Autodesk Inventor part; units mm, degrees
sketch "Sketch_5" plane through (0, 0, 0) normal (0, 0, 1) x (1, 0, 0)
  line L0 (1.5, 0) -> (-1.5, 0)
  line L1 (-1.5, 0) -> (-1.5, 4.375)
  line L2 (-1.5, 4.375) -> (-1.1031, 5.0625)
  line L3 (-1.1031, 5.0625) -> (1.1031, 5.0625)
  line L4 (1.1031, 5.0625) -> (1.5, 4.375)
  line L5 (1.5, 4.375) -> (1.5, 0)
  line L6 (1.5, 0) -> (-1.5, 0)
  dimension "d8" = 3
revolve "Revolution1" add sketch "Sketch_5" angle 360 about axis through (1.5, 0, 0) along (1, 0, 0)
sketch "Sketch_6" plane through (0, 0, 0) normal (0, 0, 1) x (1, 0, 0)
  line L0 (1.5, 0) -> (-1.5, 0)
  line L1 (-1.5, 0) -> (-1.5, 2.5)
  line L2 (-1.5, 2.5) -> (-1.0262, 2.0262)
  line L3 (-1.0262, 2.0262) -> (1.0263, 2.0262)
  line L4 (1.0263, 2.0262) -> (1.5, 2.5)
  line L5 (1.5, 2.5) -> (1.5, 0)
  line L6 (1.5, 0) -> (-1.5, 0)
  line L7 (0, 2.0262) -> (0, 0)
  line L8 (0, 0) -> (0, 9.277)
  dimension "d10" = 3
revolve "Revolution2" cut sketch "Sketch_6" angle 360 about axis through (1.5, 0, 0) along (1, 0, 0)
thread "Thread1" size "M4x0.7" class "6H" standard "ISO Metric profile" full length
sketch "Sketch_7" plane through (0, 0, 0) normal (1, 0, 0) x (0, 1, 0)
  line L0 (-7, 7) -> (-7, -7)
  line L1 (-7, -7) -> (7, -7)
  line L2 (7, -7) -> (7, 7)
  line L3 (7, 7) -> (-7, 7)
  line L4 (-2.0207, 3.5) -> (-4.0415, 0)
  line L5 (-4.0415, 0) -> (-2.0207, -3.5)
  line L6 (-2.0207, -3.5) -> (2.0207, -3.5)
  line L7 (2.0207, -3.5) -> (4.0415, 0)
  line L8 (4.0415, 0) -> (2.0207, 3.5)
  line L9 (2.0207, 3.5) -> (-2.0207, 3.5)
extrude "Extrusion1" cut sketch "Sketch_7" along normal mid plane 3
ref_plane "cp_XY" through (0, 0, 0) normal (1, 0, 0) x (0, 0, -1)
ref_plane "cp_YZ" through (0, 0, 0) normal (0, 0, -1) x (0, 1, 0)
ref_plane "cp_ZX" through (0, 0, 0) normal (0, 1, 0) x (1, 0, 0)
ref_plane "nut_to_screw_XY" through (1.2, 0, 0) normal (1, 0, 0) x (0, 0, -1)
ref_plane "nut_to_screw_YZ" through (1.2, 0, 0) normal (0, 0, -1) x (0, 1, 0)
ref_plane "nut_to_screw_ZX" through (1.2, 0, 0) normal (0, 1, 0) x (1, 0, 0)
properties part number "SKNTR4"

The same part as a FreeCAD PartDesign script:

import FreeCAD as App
import Part
import Sketcher
Q = App.Units.Quantity

doc = App.newDocument("Part")
body = doc.addObject("PartDesign::Body", "Body")

sketch1 = doc.addObject("Sketcher::SketchObject", "Sketch")
body.addObject(sketch1)
sketch1.AttachmentSupport = (doc.XY_Plane, [""])
sketch1.MapMode = "FlatFace"
sketch1.addGeometry([
    Part.LineSegment(App.Vector(-1.5, 0, 0), App.Vector(1.5, 0, 0)),
    Part.LineSegment(App.Vector(1.5, 0, 0), App.Vector(1.5, 4.4, 0)),
    Part.LineSegment(App.Vector(1.5, 4.4, 0), App.Vector(1.1, 5.1, 0)),
    Part.LineSegment(App.Vector(1.1, 5.1, 0), App.Vector(-1.1, 5.1, 0)),
    Part.LineSegment(App.Vector(-1.1, 5.1, 0), App.Vector(-1.5, 4.4, 0)),
    Part.LineSegment(App.Vector(-1.5, 4.4, 0), App.Vector(-1.5, 0, 0)),
], False)
sketch1.addConstraint([
    Sketcher.Constraint("Coincident", 0, 2, 1, 1),
    Sketcher.Constraint("Coincident", 1, 2, 2, 1),
    Sketcher.Constraint("Coincident", 2, 2, 3, 1),
    Sketcher.Constraint("Coincident", 3, 2, 4, 1),
    Sketcher.Constraint("Coincident", 4, 2, 5, 1),
    Sketcher.Constraint("Coincident", 5, 2, 0, 1),
    Sketcher.Constraint("Horizontal", 0),
    Sketcher.Constraint("Vertical", 1),
    Sketcher.Constraint("Horizontal", 3),
    Sketcher.Constraint("Vertical", 5),
    Sketcher.Constraint("Symmetric", 0, 2, 5, 2, -1, 1),
    Sketcher.Constraint("Horizontal", 1, 2, 4, 2),
    Sketcher.Constraint("Equal", 2, 4),
    Sketcher.Constraint("DistanceX", 0, 1, 0, 2, Q("3 mm")),
    Sketcher.Constraint("DistanceY", 1, 1, 1, 2, Q("4.375 mm")),
    Sketcher.Constraint("DistanceX", 3, 2, 3, 1, Q("2.2062 mm")),
    Sketcher.Constraint("Distance", 2, Q("0.7938 mm")),
])
revolution = doc.addObject("PartDesign::Revolution", "Revolution")
body.addObject(revolution)
revolution.Profile = sketch1
revolution.ReferenceAxis = (sketch1, ["H_Axis"])
revolution.Angle = 360

sketch2 = doc.addObject("Sketcher::SketchObject", "Sketch001")
body.addObject(sketch2)
sketch2.AttachmentSupport = (doc.XY_Plane, [""])
sketch2.MapMode = "FlatFace"
sketch2.addGeometry([
    Part.LineSegment(App.Vector(1.5, 0, 0), App.Vector(1.5, 2.5, 0)),
    Part.LineSegment(App.Vector(1.5, 2.5, 0), App.Vector(1, 2, 0)),
    Part.LineSegment(App.Vector(1, 2, 0), App.Vector(-1, 2, 0)),
    Part.LineSegment(App.Vector(-1, 2, 0), App.Vector(-1.5, 2.5, 0)),
    Part.LineSegment(App.Vector(-1.5, 2.5, 0), App.Vector(-1.5, 0, 0)),
    Part.LineSegment(App.Vector(-1.5, 0, 0), App.Vector(1.5, 0, 0)),
], False)
sketch2.addConstraint([
    Sketcher.Constraint("Coincident", 0, 2, 1, 1),
    Sketcher.Constraint("Coincident", 1, 2, 2, 1),
    Sketcher.Constraint("Coincident", 2, 2, 3, 1),
    Sketcher.Constraint("Coincident", 3, 2, 4, 1),
    Sketcher.Constraint("Coincident", 4, 2, 5, 1),
    Sketcher.Constraint("Coincident", 5, 2, 0, 1),
    Sketcher.Constraint("Vertical", 0),
    Sketcher.Constraint("Horizontal", 2),
    Sketcher.Constraint("Vertical", 4),
    Sketcher.Constraint("Horizontal", 5),
    Sketcher.Constraint("Symmetric", 4, 2, 5, 2, -1, 1),
    Sketcher.Constraint("Perpendicular", 1, 3),
    Sketcher.Constraint("Horizontal", 0, 2, 3, 2),
    Sketcher.Constraint("Equal", 1, 3),
    Sketcher.Constraint("DistanceX", 5, 1, 5, 2, Q("3 mm")),
    Sketcher.Constraint("DistanceY", 0, 1, 0, 2, Q("2.5 mm")),
    Sketcher.Constraint("Distance", 1, Q("0.67 mm")),
])
groove = doc.addObject("PartDesign::Groove", "Groove")
body.addObject(groove)
groove.Profile = sketch2
groove.ReferenceAxis = (sketch2, ["H_Axis"])
groove.Angle = 360

sketch3 = doc.addObject("Sketcher::SketchObject", "Sketch002")
body.addObject(sketch3)
sketch3.AttachmentSupport = (doc.YZ_Plane, [""])
sketch3.MapMode = "FlatFace"
sketch3.addGeometry([
    Part.LineSegment(App.Vector(7, 7, 0), App.Vector(-7, 7, 0)),
    Part.LineSegment(App.Vector(-7, 7, 0), App.Vector(-7, -7, 0)),
    Part.LineSegment(App.Vector(-7, -7, 0), App.Vector(7, -7, 0)),
    Part.LineSegment(App.Vector(7, -7, 0), App.Vector(7, 7, 0)),
    Part.LineSegment(App.Vector(-4, 0, 0), App.Vector(-2, 3.5, 0)),
    Part.LineSegment(App.Vector(-2, 3.5, 0), App.Vector(2, 3.5, 0)),
    Part.LineSegment(App.Vector(2, 3.5, 0), App.Vector(4, 0, 0)),
    Part.LineSegment(App.Vector(4, 0, 0), App.Vector(2, -3.5, 0)),
    Part.LineSegment(App.Vector(2, -3.5, 0), App.Vector(-2, -3.5, 0)),
    Part.LineSegment(App.Vector(-2, -3.5, 0), App.Vector(-4, 0, 0)),
], False)
sketch3.addConstraint([
    Sketcher.Constraint("Coincident", 0, 2, 1, 1),
    Sketcher.Constraint("Coincident", 1, 2, 2, 1),
    Sketcher.Constraint("Coincident", 2, 2, 3, 1),
    Sketcher.Constraint("Coincident", 3, 2, 0, 1),
    Sketcher.Constraint("Coincident", 4, 2, 5, 1),
    Sketcher.Constraint("Coincident", 5, 2, 6, 1),
    Sketcher.Constraint("Coincident", 6, 2, 7, 1),
    Sketcher.Constraint("Coincident", 7, 2, 8, 1),
    Sketcher.Constraint("Coincident", 8, 2, 9, 1),
    Sketcher.Constraint("Coincident", 9, 2, 4, 1),
    Sketcher.Constraint("Horizontal", 0),
    Sketcher.Constraint("Vertical", 1),
    Sketcher.Constraint("Horizontal", 2),
    Sketcher.Constraint("Vertical", 3),
    Sketcher.Constraint("Horizontal", 5),
    Sketcher.Constraint("Horizontal", 8),
    Sketcher.Constraint("Symmetric", 0, 2, 2, 2, -1, 1),
    Sketcher.Constraint("Symmetric", 4, 2, 7, 2, -1, 1),
    Sketcher.Constraint("Symmetric", 6, 2, 9, 2, -1, 1),
    Sketcher.Constraint("PointOnObject", 6, 2, -1),
    Sketcher.Constraint("Parallel", 6, 9),
    Sketcher.Constraint("Vertical", 5, 2, 7, 2),
    Sketcher.Constraint("Equal", 2, 1),
    Sketcher.Constraint("DistanceX", 0, 2, 0, 1, Q("14 mm")),
    Sketcher.Constraint("Angle", 4, Q("59.999 deg")),
    Sketcher.Constraint("DistanceY", 7, 2, 5, 2, Q("7 mm")),
    Sketcher.Constraint("DistanceX", 5, 1, 5, 2, Q("4.0414 mm")),
])
pocket1 = doc.addObject("PartDesign::Pocket", "Pocket")
body.addObject(pocket1)
pocket1.Profile = sketch3
pocket1.Length = 3
pocket1.Midplane = True

doc.recompute()
